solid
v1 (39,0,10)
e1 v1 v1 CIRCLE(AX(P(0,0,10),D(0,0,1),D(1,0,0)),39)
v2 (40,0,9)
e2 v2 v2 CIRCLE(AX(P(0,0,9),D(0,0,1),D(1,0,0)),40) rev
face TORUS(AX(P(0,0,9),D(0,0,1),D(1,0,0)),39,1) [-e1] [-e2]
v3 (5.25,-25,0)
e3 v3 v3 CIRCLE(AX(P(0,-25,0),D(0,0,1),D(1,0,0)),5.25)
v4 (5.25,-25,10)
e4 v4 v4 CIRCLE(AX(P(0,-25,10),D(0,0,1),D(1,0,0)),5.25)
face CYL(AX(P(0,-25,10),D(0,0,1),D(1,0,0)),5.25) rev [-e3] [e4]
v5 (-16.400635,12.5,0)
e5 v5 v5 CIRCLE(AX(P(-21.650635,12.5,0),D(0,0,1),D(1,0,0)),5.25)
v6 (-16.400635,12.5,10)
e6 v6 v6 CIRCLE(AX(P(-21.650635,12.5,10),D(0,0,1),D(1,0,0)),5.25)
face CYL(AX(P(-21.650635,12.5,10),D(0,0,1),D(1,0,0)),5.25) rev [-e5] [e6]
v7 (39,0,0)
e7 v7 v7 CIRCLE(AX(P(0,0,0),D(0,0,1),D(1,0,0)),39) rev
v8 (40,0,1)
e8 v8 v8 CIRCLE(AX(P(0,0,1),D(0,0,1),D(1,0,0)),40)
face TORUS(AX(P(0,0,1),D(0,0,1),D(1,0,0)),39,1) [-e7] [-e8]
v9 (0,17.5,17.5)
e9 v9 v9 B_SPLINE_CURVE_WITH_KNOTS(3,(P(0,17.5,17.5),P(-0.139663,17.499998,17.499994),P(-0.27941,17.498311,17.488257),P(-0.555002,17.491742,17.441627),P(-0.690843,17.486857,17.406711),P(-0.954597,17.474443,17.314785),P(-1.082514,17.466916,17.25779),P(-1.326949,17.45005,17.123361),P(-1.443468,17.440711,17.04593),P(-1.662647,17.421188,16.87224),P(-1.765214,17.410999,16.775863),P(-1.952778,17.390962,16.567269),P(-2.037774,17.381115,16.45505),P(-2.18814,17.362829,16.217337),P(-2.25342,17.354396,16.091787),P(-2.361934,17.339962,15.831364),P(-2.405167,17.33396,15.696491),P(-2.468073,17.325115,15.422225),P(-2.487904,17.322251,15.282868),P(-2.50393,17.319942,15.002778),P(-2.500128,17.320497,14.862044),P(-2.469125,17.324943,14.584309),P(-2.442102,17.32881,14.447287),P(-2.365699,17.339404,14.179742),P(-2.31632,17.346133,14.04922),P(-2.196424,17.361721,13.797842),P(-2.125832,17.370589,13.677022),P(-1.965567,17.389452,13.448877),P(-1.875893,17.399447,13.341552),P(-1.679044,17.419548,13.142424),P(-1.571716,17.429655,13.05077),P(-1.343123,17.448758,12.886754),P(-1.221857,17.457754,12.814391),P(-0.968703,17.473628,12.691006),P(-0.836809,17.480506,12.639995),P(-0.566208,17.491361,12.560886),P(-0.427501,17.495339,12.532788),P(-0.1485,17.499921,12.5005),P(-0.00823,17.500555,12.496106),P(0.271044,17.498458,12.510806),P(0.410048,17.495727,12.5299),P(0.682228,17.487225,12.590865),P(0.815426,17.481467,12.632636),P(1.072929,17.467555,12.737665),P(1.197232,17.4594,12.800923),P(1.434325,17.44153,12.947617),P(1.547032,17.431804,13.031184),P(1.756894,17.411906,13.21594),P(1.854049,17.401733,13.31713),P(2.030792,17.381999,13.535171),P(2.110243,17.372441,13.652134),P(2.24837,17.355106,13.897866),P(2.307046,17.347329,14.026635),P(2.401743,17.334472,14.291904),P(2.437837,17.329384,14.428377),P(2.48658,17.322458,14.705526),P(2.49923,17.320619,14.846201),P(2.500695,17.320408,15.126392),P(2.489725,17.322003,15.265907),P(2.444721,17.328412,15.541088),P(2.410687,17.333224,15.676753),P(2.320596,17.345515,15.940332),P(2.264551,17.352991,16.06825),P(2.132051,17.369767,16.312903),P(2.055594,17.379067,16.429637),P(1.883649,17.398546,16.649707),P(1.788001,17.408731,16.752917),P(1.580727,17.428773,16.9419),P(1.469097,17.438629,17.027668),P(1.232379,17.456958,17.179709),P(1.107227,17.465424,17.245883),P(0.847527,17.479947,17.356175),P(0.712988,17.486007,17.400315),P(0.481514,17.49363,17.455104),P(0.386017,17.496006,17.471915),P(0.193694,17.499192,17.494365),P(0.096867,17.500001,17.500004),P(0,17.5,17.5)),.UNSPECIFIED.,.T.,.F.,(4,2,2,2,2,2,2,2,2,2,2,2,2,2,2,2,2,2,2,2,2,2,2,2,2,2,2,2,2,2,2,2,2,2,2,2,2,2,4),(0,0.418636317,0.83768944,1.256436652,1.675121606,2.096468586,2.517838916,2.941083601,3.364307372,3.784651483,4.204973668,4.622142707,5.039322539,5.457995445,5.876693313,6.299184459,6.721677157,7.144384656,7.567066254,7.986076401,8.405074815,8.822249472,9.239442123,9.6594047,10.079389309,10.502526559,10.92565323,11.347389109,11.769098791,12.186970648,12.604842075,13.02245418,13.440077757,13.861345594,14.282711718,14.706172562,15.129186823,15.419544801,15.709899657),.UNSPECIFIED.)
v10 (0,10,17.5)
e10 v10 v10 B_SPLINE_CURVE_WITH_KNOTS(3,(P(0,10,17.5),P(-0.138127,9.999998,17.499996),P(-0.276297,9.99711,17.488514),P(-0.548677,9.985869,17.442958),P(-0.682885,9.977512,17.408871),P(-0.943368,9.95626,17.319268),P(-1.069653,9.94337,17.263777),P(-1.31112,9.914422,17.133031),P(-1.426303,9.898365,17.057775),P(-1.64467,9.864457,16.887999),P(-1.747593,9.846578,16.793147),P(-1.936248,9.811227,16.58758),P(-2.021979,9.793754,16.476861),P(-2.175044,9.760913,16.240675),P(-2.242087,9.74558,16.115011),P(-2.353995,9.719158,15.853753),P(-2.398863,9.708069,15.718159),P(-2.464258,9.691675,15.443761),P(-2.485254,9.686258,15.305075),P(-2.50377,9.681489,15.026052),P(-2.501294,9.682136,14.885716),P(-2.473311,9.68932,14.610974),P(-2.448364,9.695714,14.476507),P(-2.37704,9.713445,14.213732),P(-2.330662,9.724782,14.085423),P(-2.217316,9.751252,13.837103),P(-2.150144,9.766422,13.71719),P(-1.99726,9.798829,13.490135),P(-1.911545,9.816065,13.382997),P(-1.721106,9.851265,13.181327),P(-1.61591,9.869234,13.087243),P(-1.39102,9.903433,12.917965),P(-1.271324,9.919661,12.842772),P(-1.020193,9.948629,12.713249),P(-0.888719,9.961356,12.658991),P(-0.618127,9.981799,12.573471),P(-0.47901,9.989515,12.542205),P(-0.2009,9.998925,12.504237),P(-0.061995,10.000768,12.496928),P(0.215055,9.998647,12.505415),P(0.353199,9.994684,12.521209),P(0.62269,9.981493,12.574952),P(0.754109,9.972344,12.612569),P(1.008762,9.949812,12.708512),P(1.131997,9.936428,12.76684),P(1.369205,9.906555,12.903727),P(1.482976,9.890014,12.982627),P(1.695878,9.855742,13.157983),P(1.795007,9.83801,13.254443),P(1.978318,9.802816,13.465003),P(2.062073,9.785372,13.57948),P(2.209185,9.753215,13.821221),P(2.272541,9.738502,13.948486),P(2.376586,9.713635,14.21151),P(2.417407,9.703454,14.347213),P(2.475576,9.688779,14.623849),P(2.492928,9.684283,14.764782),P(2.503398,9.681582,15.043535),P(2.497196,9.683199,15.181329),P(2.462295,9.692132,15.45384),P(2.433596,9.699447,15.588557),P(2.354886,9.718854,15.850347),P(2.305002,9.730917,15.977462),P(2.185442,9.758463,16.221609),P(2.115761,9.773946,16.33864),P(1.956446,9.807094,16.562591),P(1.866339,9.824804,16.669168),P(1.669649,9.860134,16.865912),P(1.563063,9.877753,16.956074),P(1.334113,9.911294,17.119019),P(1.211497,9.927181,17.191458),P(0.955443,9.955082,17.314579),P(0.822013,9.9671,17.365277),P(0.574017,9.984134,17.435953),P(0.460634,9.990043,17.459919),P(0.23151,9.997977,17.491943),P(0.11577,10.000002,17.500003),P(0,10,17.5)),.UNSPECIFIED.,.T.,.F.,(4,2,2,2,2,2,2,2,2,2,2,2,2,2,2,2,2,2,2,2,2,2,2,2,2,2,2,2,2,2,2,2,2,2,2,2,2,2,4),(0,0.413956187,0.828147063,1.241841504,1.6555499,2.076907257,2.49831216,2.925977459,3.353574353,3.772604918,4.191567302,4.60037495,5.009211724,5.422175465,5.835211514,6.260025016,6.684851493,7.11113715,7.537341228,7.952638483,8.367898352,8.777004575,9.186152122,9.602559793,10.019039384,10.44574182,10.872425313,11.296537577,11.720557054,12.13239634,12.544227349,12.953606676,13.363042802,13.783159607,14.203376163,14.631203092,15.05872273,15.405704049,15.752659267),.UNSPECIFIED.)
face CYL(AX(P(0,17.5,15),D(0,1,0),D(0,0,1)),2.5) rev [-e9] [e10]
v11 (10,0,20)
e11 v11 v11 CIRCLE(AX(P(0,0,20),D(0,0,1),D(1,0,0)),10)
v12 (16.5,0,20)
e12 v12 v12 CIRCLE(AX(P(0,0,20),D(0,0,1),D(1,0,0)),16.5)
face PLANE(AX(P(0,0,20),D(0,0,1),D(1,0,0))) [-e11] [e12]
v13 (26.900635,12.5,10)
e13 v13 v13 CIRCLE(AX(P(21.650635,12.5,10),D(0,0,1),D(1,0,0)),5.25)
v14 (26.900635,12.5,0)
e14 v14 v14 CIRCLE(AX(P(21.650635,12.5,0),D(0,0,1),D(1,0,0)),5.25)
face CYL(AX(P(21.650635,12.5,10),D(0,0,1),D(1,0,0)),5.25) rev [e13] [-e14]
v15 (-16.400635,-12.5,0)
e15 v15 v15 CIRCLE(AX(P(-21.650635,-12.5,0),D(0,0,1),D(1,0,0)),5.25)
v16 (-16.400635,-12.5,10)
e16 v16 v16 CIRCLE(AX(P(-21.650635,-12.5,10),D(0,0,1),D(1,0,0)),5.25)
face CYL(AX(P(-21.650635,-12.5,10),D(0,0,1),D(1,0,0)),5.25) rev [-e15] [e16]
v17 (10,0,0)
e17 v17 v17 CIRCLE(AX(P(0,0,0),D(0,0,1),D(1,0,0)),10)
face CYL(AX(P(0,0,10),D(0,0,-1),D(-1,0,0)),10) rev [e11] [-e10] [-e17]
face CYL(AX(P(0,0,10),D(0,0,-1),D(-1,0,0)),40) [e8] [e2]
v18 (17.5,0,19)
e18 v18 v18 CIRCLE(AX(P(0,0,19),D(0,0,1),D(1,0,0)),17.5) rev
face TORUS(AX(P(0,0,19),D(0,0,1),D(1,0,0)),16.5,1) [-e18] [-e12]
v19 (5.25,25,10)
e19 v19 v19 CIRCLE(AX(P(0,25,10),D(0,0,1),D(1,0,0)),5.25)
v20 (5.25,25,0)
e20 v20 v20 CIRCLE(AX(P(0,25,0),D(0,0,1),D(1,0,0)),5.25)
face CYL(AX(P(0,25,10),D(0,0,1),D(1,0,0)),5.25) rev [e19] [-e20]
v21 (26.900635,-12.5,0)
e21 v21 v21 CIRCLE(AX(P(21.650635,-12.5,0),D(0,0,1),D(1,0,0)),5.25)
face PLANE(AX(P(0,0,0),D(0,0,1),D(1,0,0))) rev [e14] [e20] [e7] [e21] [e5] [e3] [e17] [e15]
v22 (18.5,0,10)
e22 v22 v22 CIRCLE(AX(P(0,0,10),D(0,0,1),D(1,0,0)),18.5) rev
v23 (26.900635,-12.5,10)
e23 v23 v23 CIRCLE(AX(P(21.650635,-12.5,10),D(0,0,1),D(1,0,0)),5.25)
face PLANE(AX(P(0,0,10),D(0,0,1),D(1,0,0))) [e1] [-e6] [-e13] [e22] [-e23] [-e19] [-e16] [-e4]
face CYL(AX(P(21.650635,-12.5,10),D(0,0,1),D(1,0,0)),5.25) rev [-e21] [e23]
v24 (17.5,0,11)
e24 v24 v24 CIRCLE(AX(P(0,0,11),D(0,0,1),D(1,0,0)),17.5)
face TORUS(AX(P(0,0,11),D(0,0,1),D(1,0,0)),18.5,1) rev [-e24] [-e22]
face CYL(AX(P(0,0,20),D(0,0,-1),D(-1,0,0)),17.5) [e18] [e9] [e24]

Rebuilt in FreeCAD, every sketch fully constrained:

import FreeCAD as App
import Part
import Sketcher


def edges_at(feature, points):
    """Names of the edges that pass closest to the given points."""
    edges = feature.Shape.Edges
    near = lambda p: min(range(len(edges)), key=lambda i: edges[i].distToShape(Part.Vertex(*p))[0])
    return sorted({f"Edge{near(p) + 1}" for p in points})

doc = App.newDocument("Part")
params = doc.addObject("Spreadsheet::Sheet", "Params")
for row, (alias, value) in enumerate([
    ("sketch1_diameter", "80 mm"),
    ("sketch1_diameter2", "20 mm"),
    ("pad1_length", "10 mm"),
    ("sketch2_diameter", "10.5 mm"),
    ("hole_diameter", "10.5 mm"),
    ("sketch3_diameter", "35 mm"),
    ("sketch3_diameter2", "20 mm"),
    ("pad2_length", "10 mm"),
    ("sketch4_diameter", "5 mm"),
    ("fillet_radius", "1 mm"),
], start=1):
    params.set(f"A{row}", alias)
    params.set(f"B{row}", "=" + value)
    params.setAlias(f"B{row}", alias)

body = doc.addObject("PartDesign::Body", "Body")

# Sketch on XY plane
sketch1 = body.newObject("Sketcher::SketchObject", "Sketch")
sketch1.AttachmentSupport = (doc.getObject("XY_Plane"), [""])
sketch1.MapMode = "FlatFace"
sketch1.addGeometry([
    Part.Circle(App.Vector(0, 0, 0), App.Vector(0, 0, 1), 40),
    Part.Circle(App.Vector(0, 0, 0), App.Vector(0, 0, 1), 10),
], False)
sketch1.addConstraint([
    Sketcher.Constraint("Coincident", 0, 3, -1, 1),
    Sketcher.Constraint("Coincident", 1, 3, -1, 1),
    Sketcher.Constraint("Diameter", 0, 80.0),
    Sketcher.Constraint("Diameter", 1, 20.0),
])
sketch1.setExpression("Constraints[2]", "Params.sketch1_diameter")
sketch1.setExpression("Constraints[3]", "Params.sketch1_diameter2")
pad1 = body.newObject("PartDesign::Pad", "Pad")
pad1.Profile = sketch1
pad1.setExpression("Length", "Params.pad1_length")

# Sketch on XY plane
sketch2 = body.newObject("Sketcher::SketchObject", "Sketch001")
sketch2.AttachmentSupport = (doc.getObject("XY_Plane"), [""])
sketch2.MapMode = "FlatFace"
sketch2.AttachmentOffset = App.Placement(App.Vector(0, 0, 10), App.Rotation())
sketch2.addGeometry(Part.Circle(App.Vector(0, 25, 0), App.Vector(0, 0, 1), 5), False)
sketch2.addConstraint([
    Sketcher.Constraint("PointOnObject", 0, 3, -2),
    Sketcher.Constraint("Diameter", 0, 10.5),
    Sketcher.Constraint("DistanceY", -1, 1, 0, 3, 25.0),
])
sketch2.setExpression("Constraints[1]", "Params.sketch2_diameter")
doc.recompute()
hole = body.newObject("PartDesign::Hole", "Hole")
hole.Profile = sketch2
hole.ThreadType = "None"
hole.setExpression("Diameter", "Params.hole_diameter")
hole.DepthType = "ThroughAll"
doc.recompute()

polarpattern = body.newObject("PartDesign::PolarPattern", "PolarPattern")
polarpattern.Originals = [hole]
polarpattern.Axis = (doc.getObject("Z_Axis"), [""])
polarpattern.Angle = 360
polarpattern.Occurrences = 6
body.Tip = polarpattern

# Sketch on XY plane
sketch3 = body.newObject("Sketcher::SketchObject", "Sketch002")
sketch3.AttachmentSupport = (doc.getObject("XY_Plane"), [""])
sketch3.MapMode = "FlatFace"
sketch3.AttachmentOffset = App.Placement(App.Vector(0, 0, 10), App.Rotation())
sketch3.addGeometry([
    Part.Circle(App.Vector(0, 0, 0), App.Vector(0, 0, 1), 18),
    Part.Circle(App.Vector(0, 0, 0), App.Vector(0, 0, 1), 10),
], False)
sketch3.addConstraint([
    Sketcher.Constraint("Coincident", 0, 3, -1, 1),
    Sketcher.Constraint("Coincident", 1, 3, -1, 1),
    Sketcher.Constraint("Diameter", 0, 35.0),
    Sketcher.Constraint("Diameter", 1, 20.0),
])
sketch3.setExpression("Constraints[2]", "Params.sketch3_diameter")
sketch3.setExpression("Constraints[3]", "Params.sketch3_diameter2")
pad2 = body.newObject("PartDesign::Pad", "Pad001")
pad2.Profile = sketch3
pad2.setExpression("Length", "Params.pad2_length")

# Sketch on XZ plane
sketch4 = body.newObject("Sketcher::SketchObject", "Sketch003")
sketch4.AttachmentSupport = (doc.getObject("XZ_Plane"), [""])
sketch4.MapMode = "FlatFace"
sketch4.AttachmentOffset = App.Placement(App.Vector(0, 0, -17.5), App.Rotation())
sketch4.addGeometry(Part.Circle(App.Vector(0, 15, 0), App.Vector(0, 0, 1), 2.5), False)
sketch4.addConstraint([
    Sketcher.Constraint("PointOnObject", 0, 3, -2),
    Sketcher.Constraint("Diameter", 0, 5.0),
    Sketcher.Constraint("DistanceY", -1, 1, 0, 3, 15.0),
])
sketch4.setExpression("Constraints[1]", "Params.sketch4_diameter")
pocket1 = body.newObject("PartDesign::Pocket", "Pocket")
pocket1.Profile = sketch4
pocket1.Type = "UpToFirst"
pocket1.Reversed = True
doc.recompute()

fillet = body.newObject("PartDesign::Fillet", "Fillet")
fillet.Base = (pocket1, edges_at(pocket1, [
    (-40, 0, 0),
    (-17.5, 0, 10),
    (-17.5, 0, 20),
    (-40, 0, 10),
]))
fillet.setExpression("Radius", "Params.fillet_radius")

doc.recompute()
